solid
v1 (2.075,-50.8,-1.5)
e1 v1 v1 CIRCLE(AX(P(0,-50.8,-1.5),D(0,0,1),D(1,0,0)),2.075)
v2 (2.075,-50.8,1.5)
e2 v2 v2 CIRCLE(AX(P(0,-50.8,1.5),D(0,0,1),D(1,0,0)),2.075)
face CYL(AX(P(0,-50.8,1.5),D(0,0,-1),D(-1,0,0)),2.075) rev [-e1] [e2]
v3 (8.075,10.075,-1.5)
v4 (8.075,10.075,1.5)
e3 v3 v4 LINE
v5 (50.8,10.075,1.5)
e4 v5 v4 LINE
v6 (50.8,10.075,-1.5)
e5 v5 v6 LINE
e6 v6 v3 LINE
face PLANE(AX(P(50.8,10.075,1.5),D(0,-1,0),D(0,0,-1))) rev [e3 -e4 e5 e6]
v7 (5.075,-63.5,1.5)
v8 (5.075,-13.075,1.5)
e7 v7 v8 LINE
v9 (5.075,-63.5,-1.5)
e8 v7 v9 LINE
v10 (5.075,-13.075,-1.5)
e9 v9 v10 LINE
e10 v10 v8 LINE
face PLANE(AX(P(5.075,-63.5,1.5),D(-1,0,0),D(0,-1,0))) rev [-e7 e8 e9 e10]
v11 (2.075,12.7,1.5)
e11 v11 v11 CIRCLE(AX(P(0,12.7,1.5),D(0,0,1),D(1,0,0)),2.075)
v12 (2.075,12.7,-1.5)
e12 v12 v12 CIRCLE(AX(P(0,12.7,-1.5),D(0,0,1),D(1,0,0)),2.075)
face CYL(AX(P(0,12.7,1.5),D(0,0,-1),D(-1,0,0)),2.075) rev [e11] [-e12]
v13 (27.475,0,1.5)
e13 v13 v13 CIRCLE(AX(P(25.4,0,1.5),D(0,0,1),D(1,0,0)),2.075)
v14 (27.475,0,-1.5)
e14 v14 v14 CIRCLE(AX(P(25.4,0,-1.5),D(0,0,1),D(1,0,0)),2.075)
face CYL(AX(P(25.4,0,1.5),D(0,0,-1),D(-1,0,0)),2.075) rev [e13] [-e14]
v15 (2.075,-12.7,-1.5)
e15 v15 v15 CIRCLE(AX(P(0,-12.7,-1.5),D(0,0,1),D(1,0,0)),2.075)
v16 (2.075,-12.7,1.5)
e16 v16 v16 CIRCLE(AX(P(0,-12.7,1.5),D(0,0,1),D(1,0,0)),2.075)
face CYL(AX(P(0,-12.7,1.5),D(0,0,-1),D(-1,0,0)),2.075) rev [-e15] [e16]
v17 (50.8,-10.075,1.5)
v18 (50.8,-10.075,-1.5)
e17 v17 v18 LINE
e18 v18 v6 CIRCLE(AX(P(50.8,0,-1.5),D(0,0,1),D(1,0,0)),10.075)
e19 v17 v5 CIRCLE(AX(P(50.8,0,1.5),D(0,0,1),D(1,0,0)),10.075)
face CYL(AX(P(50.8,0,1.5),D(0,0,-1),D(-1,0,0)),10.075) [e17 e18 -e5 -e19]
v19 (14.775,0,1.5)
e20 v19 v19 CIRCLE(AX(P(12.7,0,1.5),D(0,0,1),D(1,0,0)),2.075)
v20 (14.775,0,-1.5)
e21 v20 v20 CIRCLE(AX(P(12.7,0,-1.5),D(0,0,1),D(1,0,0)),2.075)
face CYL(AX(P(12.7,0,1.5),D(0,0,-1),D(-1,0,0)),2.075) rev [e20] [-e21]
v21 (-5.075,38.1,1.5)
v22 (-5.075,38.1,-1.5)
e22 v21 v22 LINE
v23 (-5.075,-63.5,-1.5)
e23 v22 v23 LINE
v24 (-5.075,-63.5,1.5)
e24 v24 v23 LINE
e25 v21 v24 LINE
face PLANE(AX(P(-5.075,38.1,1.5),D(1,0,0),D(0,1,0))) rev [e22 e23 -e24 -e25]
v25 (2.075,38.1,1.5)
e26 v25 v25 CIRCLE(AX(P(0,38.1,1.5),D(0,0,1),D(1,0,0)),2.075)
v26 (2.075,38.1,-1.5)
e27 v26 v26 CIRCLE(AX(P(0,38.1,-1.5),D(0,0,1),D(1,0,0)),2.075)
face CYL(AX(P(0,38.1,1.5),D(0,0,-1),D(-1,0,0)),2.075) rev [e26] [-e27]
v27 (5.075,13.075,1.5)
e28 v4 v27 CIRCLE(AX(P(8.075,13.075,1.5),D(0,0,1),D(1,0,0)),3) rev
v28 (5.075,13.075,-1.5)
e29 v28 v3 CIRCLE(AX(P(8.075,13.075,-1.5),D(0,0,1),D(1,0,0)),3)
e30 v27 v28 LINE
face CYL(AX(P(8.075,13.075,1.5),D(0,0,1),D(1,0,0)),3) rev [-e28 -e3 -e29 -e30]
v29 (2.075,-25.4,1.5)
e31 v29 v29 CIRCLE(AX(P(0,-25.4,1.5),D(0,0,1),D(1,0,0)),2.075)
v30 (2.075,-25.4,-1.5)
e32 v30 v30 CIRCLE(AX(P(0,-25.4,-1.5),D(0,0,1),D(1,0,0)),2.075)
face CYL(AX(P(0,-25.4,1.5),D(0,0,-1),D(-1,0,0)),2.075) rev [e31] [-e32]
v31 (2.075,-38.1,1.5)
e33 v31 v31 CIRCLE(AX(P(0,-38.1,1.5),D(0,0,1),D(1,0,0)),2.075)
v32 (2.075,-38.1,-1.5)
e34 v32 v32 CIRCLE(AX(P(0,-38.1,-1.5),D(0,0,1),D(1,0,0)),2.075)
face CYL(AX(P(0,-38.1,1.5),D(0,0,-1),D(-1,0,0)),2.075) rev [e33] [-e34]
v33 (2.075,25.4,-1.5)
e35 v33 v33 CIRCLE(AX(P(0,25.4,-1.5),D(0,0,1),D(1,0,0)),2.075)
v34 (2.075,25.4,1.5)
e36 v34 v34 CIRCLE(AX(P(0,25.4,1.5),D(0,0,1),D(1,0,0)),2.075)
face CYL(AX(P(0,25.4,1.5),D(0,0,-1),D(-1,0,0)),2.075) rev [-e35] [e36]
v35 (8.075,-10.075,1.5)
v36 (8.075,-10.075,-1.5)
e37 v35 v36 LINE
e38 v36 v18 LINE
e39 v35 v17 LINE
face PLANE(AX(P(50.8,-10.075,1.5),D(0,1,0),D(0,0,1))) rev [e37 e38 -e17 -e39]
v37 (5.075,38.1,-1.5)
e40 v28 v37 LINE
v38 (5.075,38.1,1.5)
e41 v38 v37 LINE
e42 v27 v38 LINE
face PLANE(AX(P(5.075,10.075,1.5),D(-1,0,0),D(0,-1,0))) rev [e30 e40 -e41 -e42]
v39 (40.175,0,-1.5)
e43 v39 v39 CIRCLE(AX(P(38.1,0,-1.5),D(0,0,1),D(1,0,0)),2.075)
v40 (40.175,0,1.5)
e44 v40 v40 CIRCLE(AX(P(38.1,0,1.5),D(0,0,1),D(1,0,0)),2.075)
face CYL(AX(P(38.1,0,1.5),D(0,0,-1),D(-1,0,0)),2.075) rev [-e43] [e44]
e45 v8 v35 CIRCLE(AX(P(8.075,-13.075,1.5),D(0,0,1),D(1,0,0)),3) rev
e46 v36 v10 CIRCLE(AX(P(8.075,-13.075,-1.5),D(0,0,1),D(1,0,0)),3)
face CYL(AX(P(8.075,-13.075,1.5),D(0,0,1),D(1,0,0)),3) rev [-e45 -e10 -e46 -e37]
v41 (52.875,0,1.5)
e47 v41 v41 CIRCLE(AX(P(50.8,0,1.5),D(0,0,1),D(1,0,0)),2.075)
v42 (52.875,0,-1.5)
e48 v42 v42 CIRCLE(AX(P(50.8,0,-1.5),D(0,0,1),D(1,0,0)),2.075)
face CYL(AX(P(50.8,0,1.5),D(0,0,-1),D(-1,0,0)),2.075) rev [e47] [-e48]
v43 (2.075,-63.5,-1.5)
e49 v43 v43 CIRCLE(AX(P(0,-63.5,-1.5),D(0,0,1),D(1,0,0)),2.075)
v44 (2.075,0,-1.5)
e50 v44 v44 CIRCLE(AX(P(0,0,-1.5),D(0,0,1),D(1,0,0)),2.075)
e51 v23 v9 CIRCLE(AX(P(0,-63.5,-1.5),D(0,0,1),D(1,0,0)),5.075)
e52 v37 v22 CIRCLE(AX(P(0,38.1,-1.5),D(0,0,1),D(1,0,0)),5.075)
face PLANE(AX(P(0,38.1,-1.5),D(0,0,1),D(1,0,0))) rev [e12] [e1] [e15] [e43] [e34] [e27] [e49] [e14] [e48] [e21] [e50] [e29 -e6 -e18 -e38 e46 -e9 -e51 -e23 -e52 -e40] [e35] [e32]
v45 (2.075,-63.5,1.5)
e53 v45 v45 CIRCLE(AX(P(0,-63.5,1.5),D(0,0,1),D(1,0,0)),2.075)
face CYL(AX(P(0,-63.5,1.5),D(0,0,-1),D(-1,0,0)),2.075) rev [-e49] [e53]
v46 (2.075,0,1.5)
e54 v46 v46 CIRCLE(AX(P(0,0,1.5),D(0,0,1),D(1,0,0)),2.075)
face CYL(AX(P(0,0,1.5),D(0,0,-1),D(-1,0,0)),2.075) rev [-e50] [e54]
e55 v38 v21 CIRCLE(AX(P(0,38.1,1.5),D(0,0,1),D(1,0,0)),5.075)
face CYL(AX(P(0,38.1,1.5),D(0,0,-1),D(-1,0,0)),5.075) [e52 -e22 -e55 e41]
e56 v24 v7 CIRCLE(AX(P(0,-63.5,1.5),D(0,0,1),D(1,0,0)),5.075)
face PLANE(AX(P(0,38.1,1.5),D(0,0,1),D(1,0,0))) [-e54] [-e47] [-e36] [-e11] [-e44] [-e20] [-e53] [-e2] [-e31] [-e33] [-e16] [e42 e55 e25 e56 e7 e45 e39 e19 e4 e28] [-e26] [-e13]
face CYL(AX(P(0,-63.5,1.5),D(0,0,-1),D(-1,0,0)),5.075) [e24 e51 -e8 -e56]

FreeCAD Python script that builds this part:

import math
import FreeCAD as App
import Part
import Sketcher
from FreeCAD import Vector
Q = App.Units.Quantity


def edges_at(feature, points):
    """Names of the edges that pass closest to the given points."""
    edges = feature.Shape.Edges
    near = lambda p: min(range(len(edges)), key=lambda i: edges[i].distToShape(Part.Vertex(*p))[0])
    return sorted({f"Edge{near(p) + 1}" for p in points})

doc = App.newDocument("Part")
body = doc.addObject("PartDesign::Body", "Body")

# Sketch on XY plane
sketch1 = doc.addObject("Sketcher::SketchObject", "Sketch")
body.addObject(sketch1)
sketch1.AttachmentSupport = (doc.XY_Plane, [""])
sketch1.MapMode = "FlatFace"
sketch1.addGeometry(Part.LineSegment(Vector(-5.1, 38.1, 0), Vector(-5.1, -63.5, 0)), False)
sketch1.addGeometry(Part.ArcOfCircle(Part.Circle(Vector(0, -63.5, 0), Vector(0, 0, 1), 5.1), math.radians(180), math.radians(360)), False)
sketch1.addGeometry(Part.LineSegment(Vector(5.1, -63.5, 0), Vector(5.1, -10.1, 0)), False)
sketch1.addGeometry(Part.LineSegment(Vector(5.1, -10.1, 0), Vector(50.8, -10.1, 0)), False)
sketch1.addGeometry(Part.ArcOfCircle(Part.Circle(Vector(50.8, 0, 0), Vector(0, 0, 1), 10.1), math.radians(-90), math.radians(90)), False)
sketch1.addGeometry(Part.LineSegment(Vector(50.8, 10.1, 0), Vector(5.1, 10.1, 0)), False)
sketch1.addGeometry(Part.LineSegment(Vector(5.1, 10.1, 0), Vector(5.1, 38.1, 0)), False)
sketch1.addGeometry(Part.ArcOfCircle(Part.Circle(Vector(0, 38.1, 0), Vector(0, 0, 1), 5.1), math.radians(0), math.radians(180)), False)
sketch1.addGeometry(Part.Circle(Vector(0, -63.5, 0), Vector(0, 0, 1), 2.1), False)
sketch1.addGeometry(Part.Circle(Vector(0, -50.8, 0), Vector(0, 0, 1), 2.1), False)
sketch1.addGeometry(Part.Circle(Vector(0, -38.1, 0), Vector(0, 0, 1), 2.1), False)
sketch1.addGeometry(Part.Circle(Vector(0, -25.4, 0), Vector(0, 0, 1), 2.1), False)
sketch1.addGeometry(Part.Circle(Vector(0, -12.7, 0), Vector(0, 0, 1), 2.1), False)
sketch1.addGeometry(Part.Circle(Vector(0, 0, 0), Vector(0, 0, 1), 2.1), False)
sketch1.addGeometry(Part.Circle(Vector(0, 12.7, 0), Vector(0, 0, 1), 2.1), False)
sketch1.addGeometry(Part.Circle(Vector(12.7, 0, 0), Vector(0, 0, 1), 2.1), False)
sketch1.addGeometry(Part.Circle(Vector(0, 25.4, 0), Vector(0, 0, 1), 2.1), False)
sketch1.addGeometry(Part.Circle(Vector(0, 38.1, 0), Vector(0, 0, 1), 2.1), False)
sketch1.addGeometry(Part.Circle(Vector(25.4, 0, 0), Vector(0, 0, 1), 2.1), False)
sketch1.addGeometry(Part.Circle(Vector(38.1, 0, 0), Vector(0, 0, 1), 2.1), False)
sketch1.addGeometry(Part.Circle(Vector(50.8, 0, 0), Vector(0, 0, 1), 2.1), False)
sketch1.addConstraint(Sketcher.Constraint("Tangent", 0, 2, 1, 1))
sketch1.addConstraint(Sketcher.Constraint("Tangent", 1, 2, 2, 1))
sketch1.addConstraint(Sketcher.Constraint("Coincident", 2, 2, 3, 1))
sketch1.addConstraint(Sketcher.Constraint("Tangent", 3, 2, 4, 1))
sketch1.addConstraint(Sketcher.Constraint("Tangent", 4, 2, 5, 1))
sketch1.addConstraint(Sketcher.Constraint("Coincident", 5, 2, 6, 1))
sketch1.addConstraint(Sketcher.Constraint("Tangent", 6, 2, 7, 1))
sketch1.addConstraint(Sketcher.Constraint("Tangent", 7, 2, 0, 1))
sketch1.addConstraint(Sketcher.Constraint("Vertical", 0))
sketch1.addConstraint(Sketcher.Constraint("Vertical", 2))
sketch1.addConstraint(Sketcher.Constraint("Horizontal", 3))
sketch1.addConstraint(Sketcher.Constraint("Horizontal", 5))
sketch1.addConstraint(Sketcher.Constraint("Vertical", 6))
sketch1.addConstraint(Sketcher.Constraint("Coincident", 13, 3, -1, 1))
sketch1.addConstraint(Sketcher.Constraint("Coincident", 8, 3, 1, 3))
sketch1.addConstraint(Sketcher.Constraint("Coincident", 17, 3, 7, 3))
sketch1.addConstraint(Sketcher.Constraint("Coincident", 20, 3, 4, 3))
sketch1.addConstraint(Sketcher.Constraint("Equal", 1, 7))
sketch1.addConstraint(Sketcher.Constraint("Equal", 8, 9))
sketch1.addConstraint(Sketcher.Constraint("Equal", 9, 10))
sketch1.addConstraint(Sketcher.Constraint("Equal", 10, 11))
sketch1.addConstraint(Sketcher.Constraint("Equal", 11, 12))
sketch1.addConstraint(Sketcher.Constraint("Equal", 12, 13))
sketch1.addConstraint(Sketcher.Constraint("Equal", 13, 14))
sketch1.addConstraint(Sketcher.Constraint("Equal", 14, 15))
sketch1.addConstraint(Sketcher.Constraint("Equal", 15, 16))
sketch1.addConstraint(Sketcher.Constraint("Equal", 16, 17))
sketch1.addConstraint(Sketcher.Constraint("Equal", 17, 18))
sketch1.addConstraint(Sketcher.Constraint("Equal", 18, 19))
sketch1.addConstraint(Sketcher.Constraint("Equal", 19, 20))
sketch1.addConstraint(Sketcher.Constraint("Symmetric", 7, 3, 10, 3, -1, 1))
sketch1.addConstraint(Sketcher.Constraint("Symmetric", 12, 3, 14, 3, -1, 1))
sketch1.addConstraint(Sketcher.Constraint("Symmetric", 11, 3, 16, 3, -1, 1))
sketch1.addConstraint(Sketcher.Constraint("PointOnObject", 1, 3, -2))
sketch1.addConstraint(Sketcher.Constraint("PointOnObject", 4, 3, -1))
sketch1.addConstraint(Sketcher.Constraint("PointOnObject", 9, 3, -2))
sketch1.addConstraint(Sketcher.Constraint("PointOnObject", 11, 3, -2))
sketch1.addConstraint(Sketcher.Constraint("PointOnObject", 12, 3, -2))
sketch1.addConstraint(Sketcher.Constraint("PointOnObject", 15, 3, -1))
sketch1.addConstraint(Sketcher.Constraint("PointOnObject", 18, 3, -1))
sketch1.addConstraint(Sketcher.Constraint("PointOnObject", 19, 3, -1))
sketch1.addConstraint(Sketcher.Constraint("Diameter", 8, Q("4.15 mm")))
sketch1.addConstraint(Sketcher.Constraint("DistanceY", 0, 2, 0, 1, Q("101.6 mm")))
sketch1.addConstraint(Sketcher.Constraint("Radius", 1, Q("5.075 mm")))
sketch1.addConstraint(Sketcher.Constraint("Radius", 4, Q("10.075 mm")))
sketch1.addConstraint(Sketcher.Constraint("DistanceY", 1, 3, -1, 1, Q("63.5 mm")))
sketch1.addConstraint(Sketcher.Constraint("DistanceX", -1, 1, 4, 3, Q("50.8 mm")))
sketch1.addConstraint(Sketcher.Constraint("DistanceY", 9, 3, -1, 1, Q("50.8 mm")))
sketch1.addConstraint(Sketcher.Constraint("DistanceY", 11, 3, -1, 1, Q("25.4 mm")))
sketch1.addConstraint(Sketcher.Constraint("DistanceY", 12, 3, -1, 1, Q("12.7 mm")))
sketch1.addConstraint(Sketcher.Constraint("DistanceX", -1, 1, 15, 3, Q("12.7 mm")))
sketch1.addConstraint(Sketcher.Constraint("DistanceX", -1, 1, 18, 3, Q("25.4 mm")))
sketch1.addConstraint(Sketcher.Constraint("DistanceX", -1, 1, 19, 3, Q("38.1 mm")))
pad1 = doc.addObject("PartDesign::Pad", "Pad")
body.addObject(pad1)
pad1.Profile = sketch1
pad1.Length = 3
pad1.Midplane = True
doc.recompute()

fillet = doc.addObject("PartDesign::Fillet", "Fillet")
body.addObject(fillet)
fillet.Base = (pad1, edges_at(pad1, [(5.075, 10.075, 0), (5.075, -10.075, 0)]))
fillet.Radius = 3

doc.recompute()
